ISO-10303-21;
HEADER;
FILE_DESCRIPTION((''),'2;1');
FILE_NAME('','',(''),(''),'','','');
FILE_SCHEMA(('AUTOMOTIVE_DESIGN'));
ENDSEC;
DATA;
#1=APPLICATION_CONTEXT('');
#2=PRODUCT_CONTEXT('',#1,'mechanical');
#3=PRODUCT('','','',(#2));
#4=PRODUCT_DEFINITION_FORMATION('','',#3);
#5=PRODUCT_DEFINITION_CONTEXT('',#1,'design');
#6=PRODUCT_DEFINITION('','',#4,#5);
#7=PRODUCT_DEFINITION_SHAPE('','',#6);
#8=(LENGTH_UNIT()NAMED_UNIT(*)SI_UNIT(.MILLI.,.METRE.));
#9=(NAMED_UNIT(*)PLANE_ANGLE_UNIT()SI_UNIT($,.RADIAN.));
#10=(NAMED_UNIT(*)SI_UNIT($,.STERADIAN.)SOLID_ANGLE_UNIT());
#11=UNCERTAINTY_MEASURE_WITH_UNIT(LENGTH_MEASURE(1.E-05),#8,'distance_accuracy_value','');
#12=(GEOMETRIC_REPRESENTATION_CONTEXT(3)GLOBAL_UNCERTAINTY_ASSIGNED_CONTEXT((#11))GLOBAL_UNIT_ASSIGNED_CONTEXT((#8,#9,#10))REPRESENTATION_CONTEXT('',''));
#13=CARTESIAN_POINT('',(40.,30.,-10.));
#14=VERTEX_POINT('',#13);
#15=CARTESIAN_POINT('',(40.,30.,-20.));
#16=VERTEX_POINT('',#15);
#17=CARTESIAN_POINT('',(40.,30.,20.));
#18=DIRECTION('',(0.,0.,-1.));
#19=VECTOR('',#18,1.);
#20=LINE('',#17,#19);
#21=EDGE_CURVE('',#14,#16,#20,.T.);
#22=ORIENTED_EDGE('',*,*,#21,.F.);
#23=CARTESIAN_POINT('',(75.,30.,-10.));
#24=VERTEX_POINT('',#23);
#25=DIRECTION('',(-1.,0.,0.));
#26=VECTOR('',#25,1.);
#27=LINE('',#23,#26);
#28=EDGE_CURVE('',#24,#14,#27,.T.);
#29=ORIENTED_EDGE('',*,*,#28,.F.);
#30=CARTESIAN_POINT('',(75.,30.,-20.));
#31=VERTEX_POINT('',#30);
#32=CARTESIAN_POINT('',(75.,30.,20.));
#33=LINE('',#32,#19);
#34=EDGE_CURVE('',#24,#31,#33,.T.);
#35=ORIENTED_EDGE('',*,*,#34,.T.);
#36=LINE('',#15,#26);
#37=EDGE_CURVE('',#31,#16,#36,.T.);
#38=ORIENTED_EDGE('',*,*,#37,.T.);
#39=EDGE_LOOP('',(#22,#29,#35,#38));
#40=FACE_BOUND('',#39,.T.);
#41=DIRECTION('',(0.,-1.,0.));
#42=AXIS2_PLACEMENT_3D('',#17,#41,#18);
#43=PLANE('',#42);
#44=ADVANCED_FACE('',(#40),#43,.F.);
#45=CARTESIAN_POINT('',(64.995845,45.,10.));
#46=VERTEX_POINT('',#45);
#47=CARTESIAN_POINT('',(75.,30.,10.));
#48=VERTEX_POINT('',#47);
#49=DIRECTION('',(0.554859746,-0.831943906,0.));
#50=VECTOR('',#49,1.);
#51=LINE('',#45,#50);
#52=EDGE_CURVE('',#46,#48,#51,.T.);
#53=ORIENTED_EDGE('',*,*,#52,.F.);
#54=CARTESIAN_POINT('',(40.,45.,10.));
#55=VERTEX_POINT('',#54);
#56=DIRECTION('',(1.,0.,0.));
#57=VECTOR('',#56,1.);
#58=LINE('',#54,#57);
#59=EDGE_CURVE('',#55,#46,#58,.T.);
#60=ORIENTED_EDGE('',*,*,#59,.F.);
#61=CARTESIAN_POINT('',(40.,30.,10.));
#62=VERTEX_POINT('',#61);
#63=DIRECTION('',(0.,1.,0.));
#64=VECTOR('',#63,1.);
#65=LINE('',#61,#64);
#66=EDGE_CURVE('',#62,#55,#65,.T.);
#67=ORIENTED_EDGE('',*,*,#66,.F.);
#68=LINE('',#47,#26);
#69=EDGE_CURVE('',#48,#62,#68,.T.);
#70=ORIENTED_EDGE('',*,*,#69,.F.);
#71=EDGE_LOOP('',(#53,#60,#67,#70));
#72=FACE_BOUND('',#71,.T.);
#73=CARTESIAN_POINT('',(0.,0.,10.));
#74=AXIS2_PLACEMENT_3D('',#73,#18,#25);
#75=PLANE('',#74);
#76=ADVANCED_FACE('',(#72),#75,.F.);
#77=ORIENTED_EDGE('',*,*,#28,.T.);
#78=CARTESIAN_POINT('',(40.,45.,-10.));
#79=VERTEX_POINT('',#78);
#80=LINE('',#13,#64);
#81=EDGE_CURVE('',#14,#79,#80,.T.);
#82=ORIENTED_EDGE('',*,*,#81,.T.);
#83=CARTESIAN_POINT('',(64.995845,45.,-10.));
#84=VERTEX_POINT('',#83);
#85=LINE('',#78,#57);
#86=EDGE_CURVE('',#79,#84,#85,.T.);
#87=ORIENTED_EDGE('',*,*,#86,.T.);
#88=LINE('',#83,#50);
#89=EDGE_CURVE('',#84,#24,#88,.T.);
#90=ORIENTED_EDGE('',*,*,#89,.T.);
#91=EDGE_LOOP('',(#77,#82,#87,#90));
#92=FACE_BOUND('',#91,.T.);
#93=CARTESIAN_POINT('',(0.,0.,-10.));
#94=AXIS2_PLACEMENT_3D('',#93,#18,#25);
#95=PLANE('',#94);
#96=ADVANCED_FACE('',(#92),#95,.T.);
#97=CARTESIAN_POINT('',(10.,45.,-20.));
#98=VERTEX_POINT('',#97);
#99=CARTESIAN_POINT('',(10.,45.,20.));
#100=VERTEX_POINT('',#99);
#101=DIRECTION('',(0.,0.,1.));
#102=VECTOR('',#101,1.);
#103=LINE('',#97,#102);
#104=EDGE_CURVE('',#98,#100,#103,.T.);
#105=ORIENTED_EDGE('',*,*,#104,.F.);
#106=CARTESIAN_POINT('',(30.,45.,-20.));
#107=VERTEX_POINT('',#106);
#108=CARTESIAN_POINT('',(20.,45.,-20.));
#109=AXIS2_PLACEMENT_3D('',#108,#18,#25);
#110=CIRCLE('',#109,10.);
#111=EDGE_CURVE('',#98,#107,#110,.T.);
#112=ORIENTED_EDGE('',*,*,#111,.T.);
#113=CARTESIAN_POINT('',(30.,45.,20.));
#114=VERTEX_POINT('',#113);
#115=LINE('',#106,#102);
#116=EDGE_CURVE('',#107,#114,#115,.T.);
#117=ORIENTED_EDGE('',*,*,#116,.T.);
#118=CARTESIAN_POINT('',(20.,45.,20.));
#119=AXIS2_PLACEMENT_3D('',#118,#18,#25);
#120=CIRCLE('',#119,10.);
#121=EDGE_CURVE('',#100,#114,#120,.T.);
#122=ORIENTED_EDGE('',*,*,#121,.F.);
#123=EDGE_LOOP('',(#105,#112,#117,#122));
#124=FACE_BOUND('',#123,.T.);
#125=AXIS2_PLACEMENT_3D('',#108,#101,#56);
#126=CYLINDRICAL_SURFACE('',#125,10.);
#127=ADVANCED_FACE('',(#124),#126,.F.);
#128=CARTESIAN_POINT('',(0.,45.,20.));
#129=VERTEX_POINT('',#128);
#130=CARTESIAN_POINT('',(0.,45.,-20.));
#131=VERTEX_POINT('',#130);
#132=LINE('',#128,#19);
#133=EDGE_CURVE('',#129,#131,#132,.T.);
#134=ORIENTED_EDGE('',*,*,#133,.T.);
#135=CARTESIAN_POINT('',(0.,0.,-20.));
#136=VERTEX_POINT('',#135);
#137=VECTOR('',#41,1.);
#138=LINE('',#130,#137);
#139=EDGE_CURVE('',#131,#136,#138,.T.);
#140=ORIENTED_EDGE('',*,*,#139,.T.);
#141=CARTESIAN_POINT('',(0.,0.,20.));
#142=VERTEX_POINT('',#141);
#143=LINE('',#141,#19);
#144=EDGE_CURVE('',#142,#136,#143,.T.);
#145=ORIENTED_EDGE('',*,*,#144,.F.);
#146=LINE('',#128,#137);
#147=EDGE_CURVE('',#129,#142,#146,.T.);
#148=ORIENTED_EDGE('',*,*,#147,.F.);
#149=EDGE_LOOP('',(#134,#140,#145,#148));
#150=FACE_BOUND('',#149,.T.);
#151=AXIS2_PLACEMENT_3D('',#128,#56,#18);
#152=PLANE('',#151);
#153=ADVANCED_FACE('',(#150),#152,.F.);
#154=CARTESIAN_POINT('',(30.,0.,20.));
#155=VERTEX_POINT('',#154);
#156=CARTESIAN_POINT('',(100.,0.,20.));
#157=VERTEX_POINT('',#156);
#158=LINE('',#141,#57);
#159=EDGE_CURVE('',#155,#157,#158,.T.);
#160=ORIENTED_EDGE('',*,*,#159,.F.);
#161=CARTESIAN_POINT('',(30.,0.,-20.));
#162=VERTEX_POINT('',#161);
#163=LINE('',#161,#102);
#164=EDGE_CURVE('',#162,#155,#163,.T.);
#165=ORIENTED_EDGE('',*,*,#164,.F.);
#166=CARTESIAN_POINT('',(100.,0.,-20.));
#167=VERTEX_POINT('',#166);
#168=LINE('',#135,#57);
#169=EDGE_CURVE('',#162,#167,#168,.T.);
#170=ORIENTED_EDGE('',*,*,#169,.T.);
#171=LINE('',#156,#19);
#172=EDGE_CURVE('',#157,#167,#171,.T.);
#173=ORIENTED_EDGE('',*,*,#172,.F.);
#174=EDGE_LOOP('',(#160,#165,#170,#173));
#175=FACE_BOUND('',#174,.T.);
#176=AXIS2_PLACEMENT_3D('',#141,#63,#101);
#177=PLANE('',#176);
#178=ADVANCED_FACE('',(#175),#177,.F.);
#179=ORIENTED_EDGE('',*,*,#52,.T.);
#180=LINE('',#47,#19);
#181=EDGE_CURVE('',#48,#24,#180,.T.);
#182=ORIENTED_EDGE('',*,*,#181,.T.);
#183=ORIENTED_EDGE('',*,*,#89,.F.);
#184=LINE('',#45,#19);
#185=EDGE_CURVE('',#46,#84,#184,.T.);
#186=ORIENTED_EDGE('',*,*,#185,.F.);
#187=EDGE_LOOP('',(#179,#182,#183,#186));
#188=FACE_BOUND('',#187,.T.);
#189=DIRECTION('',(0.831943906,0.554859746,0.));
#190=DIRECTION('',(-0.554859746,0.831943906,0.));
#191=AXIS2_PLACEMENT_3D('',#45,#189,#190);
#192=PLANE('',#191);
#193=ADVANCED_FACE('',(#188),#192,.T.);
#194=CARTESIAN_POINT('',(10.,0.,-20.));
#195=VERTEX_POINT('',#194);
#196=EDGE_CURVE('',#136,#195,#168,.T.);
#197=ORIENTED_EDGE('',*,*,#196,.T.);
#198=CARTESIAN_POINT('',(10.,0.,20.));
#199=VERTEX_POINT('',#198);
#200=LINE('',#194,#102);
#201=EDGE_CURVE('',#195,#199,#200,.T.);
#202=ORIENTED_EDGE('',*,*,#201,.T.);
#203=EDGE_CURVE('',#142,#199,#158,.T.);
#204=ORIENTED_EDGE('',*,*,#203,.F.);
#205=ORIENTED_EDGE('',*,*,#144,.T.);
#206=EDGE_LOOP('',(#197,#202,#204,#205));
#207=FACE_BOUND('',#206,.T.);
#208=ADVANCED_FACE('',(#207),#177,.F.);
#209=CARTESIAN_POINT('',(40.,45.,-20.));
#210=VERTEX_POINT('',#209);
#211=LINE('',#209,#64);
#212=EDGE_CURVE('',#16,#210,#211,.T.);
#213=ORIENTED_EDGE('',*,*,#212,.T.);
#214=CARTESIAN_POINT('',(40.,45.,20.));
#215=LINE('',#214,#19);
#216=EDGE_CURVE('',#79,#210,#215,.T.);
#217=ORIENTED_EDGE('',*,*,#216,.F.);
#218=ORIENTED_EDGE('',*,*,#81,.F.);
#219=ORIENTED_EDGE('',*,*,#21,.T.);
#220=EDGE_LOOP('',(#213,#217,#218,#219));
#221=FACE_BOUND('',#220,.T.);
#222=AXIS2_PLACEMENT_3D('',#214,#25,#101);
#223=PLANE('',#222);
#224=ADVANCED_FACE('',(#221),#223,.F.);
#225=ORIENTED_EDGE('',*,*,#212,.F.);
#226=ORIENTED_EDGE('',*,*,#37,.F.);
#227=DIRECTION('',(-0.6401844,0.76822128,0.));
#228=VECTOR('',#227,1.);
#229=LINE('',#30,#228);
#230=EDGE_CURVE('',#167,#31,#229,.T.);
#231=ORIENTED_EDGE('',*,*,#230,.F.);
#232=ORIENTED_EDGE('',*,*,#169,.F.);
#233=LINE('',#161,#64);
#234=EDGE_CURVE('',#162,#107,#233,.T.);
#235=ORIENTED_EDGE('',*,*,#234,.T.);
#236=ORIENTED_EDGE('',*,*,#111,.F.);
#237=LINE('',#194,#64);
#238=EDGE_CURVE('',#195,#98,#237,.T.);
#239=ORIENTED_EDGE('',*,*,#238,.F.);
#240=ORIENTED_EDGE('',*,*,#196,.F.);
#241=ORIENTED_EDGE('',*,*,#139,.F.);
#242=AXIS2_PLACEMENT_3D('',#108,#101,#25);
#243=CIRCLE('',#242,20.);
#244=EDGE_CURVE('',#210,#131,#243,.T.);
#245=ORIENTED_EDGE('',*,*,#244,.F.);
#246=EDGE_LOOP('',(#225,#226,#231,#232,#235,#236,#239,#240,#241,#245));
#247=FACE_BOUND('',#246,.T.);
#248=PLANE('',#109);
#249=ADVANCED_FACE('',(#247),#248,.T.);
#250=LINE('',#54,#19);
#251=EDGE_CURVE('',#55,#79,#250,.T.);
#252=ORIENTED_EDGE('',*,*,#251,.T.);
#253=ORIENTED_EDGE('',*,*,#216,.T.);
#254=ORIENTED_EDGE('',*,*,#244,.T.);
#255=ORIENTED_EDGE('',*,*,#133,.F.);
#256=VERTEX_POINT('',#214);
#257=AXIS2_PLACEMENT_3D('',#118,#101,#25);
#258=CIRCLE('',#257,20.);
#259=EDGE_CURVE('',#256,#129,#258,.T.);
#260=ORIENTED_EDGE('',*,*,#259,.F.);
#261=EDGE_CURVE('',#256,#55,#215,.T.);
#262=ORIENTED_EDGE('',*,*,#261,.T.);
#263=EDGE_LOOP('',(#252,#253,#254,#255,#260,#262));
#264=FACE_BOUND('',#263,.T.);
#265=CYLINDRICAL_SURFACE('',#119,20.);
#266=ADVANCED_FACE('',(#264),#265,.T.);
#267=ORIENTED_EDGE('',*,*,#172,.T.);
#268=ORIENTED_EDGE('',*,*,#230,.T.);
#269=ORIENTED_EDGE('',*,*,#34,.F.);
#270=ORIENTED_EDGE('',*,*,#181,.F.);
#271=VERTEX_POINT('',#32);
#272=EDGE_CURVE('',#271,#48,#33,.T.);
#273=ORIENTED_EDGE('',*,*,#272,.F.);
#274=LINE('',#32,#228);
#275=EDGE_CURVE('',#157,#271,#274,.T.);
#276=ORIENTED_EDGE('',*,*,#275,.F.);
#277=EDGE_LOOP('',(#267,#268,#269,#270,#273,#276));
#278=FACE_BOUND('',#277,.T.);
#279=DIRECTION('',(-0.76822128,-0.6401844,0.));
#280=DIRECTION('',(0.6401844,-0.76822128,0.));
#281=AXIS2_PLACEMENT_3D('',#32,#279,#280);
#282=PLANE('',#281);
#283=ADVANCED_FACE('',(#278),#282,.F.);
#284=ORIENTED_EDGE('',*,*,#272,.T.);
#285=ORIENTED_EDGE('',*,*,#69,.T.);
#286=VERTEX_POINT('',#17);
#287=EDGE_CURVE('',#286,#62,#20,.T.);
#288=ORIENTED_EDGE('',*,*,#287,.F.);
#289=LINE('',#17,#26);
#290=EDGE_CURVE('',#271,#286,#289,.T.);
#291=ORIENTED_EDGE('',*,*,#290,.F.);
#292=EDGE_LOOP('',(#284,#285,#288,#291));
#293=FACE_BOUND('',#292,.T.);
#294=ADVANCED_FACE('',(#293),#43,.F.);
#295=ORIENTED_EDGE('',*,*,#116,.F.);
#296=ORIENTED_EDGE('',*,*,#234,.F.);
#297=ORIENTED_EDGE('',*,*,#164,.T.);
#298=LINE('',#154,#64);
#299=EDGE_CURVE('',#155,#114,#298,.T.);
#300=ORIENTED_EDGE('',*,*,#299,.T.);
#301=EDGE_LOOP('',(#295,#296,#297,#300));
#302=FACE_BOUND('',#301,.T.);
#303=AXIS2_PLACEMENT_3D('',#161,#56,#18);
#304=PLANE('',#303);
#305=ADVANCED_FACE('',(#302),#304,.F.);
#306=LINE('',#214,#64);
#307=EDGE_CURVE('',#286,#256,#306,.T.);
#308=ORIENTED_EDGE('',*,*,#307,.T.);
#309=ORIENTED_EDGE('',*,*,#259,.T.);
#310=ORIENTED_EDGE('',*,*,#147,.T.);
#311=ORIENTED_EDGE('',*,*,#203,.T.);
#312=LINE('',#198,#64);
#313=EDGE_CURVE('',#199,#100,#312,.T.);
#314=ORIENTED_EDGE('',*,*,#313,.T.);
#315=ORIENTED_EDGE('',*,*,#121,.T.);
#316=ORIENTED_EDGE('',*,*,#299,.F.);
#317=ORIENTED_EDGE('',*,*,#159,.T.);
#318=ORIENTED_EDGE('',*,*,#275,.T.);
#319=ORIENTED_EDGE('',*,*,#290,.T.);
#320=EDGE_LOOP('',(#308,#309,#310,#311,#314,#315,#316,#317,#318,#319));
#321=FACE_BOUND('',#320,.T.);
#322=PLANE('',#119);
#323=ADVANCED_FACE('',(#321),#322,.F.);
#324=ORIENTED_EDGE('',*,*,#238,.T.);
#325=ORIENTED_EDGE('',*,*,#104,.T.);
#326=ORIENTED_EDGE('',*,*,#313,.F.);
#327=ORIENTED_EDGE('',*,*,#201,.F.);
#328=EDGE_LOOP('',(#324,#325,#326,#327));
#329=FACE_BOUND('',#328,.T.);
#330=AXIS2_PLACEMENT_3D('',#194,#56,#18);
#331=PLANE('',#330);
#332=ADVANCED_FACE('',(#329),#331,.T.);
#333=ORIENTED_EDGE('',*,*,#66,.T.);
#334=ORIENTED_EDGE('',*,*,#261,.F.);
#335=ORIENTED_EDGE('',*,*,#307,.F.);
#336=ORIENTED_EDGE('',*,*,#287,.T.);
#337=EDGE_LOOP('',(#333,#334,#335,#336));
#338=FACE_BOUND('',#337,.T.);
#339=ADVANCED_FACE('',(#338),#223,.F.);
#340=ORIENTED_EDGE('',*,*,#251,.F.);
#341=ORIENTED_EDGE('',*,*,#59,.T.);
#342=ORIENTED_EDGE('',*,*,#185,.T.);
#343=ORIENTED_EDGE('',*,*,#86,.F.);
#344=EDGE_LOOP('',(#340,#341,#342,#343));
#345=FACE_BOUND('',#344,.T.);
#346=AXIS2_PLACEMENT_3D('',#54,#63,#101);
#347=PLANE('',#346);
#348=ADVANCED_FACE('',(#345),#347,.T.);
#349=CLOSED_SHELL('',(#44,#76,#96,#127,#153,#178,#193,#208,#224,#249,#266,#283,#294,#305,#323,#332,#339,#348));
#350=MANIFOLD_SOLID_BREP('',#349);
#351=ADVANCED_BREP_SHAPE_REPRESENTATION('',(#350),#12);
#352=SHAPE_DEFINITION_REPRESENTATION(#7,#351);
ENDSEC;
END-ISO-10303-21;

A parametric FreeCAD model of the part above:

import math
import FreeCAD as App
import Part
import Sketcher

V = App.Vector
Q = App.Units.Quantity

doc = App.newDocument("Part")
body = doc.addObject("PartDesign::Body", "Body")

# Sketch on XY plane
sketch1 = body.newObject("Sketcher::SketchObject", "Sketch")
sketch1.AttachmentSupport = (doc.getObject("XY_Plane"), [""])
sketch1.MapMode = "FlatFace"
sketch1.addGeometry(Part.LineSegment(V(0, 0, 0), V(100, 0, 0)), False)
sketch1.addGeometry(Part.LineSegment(V(100, 0, 0), V(75, 30, 0)), False)
sketch1.addGeometry(Part.LineSegment(V(75, 30, 0), V(40, 30, 0)), False)
sketch1.addGeometry(Part.LineSegment(V(40, 30, 0), V(40, 45, 0)), False)
sketch1.addGeometry(Part.ArcOfCircle(Part.Circle(V(20, 45, 0), V(0, 0, 1), 20), math.radians(0), math.radians(90)), False)
sketch1.addGeometry(Part.ArcOfCircle(Part.Circle(V(20, 45, 0), V(0, 0, 1), 20), math.radians(90), math.radians(180)), False)
sketch1.addGeometry(Part.LineSegment(V(0, 45, 0), V(0, 0, 0)), False)
sketch1.addConstraint(Sketcher.Constraint("Coincident", 0, 2, 1, 1))
sketch1.addConstraint(Sketcher.Constraint("Coincident", 1, 2, 2, 1))
sketch1.addConstraint(Sketcher.Constraint("Coincident", 2, 2, 3, 1))
sketch1.addConstraint(Sketcher.Constraint("Tangent", 3, 2, 4, 1))
sketch1.addConstraint(Sketcher.Constraint("Tangent", 4, 2, 5, 1))
sketch1.addConstraint(Sketcher.Constraint("Tangent", 5, 2, 6, 1))
sketch1.addConstraint(Sketcher.Constraint("Coincident", 6, 2, 0, 1))
sketch1.addConstraint(Sketcher.Constraint("Horizontal", 0))
sketch1.addConstraint(Sketcher.Constraint("Horizontal", 2))
sketch1.addConstraint(Sketcher.Constraint("Vertical", 3))
sketch1.addConstraint(Sketcher.Constraint("Vertical", 6))
sketch1.addConstraint(Sketcher.Constraint("Coincident", 6, 2, -1, 1))
sketch1.addConstraint(Sketcher.Constraint("Equal", 4, 5))
sketch1.addConstraint(Sketcher.Constraint("Vertical", 5, 3, 4, 2))
sketch1.addConstraint(Sketcher.Constraint("Radius", 4, Q("20 mm")))
sketch1.addConstraint(Sketcher.Constraint("DistanceX", 0, 1, 0, 2, Q("100 mm")))
sketch1.addConstraint(Sketcher.Constraint("DistanceX", 2, 2, 2, 1, Q("35 mm")))
sketch1.addConstraint(Sketcher.Constraint("DistanceY", 3, 1, 3, 2, Q("15 mm")))
sketch1.addConstraint(Sketcher.Constraint("DistanceY", 6, 2, 6, 1, Q("45 mm")))
pad1 = body.newObject("PartDesign::Pad", "Pad")
pad1.Profile = sketch1
pad1.Length = 40
pad1.Midplane = True

# Sketch on XY plane
sketch2 = body.newObject("Sketcher::SketchObject", "Sketch001")
sketch2.AttachmentSupport = (doc.getObject("XY_Plane"), [""])
sketch2.MapMode = "FlatFace"
sketch2.addGeometry(Part.LineSegment(V(40, 45, 0), V(40, 30, 0)), False)
sketch2.addGeometry(Part.LineSegment(V(40, 30, 0), V(75, 30, 0)), False)
sketch2.addGeometry(Part.LineSegment(V(75, 30, 0), V(65, 45, 0)), False)
sketch2.addGeometry(Part.LineSegment(V(65, 45, 0), V(40, 45, 0)), False)
sketch2.addConstraint(Sketcher.Constraint("Coincident", 0, 2, 1, 1))
sketch2.addConstraint(Sketcher.Constraint("Coincident", 1, 2, 2, 1))
sketch2.addConstraint(Sketcher.Constraint("Coincident", 2, 2, 3, 1))
sketch2.addConstraint(Sketcher.Constraint("Coincident", 3, 2, 0, 1))
sketch2.addConstraint(Sketcher.Constraint("Vertical", 0))
sketch2.addConstraint(Sketcher.Constraint("Horizontal", 1))
sketch2.addConstraint(Sketcher.Constraint("Horizontal", 3))
sketch2.addConstraint(Sketcher.Constraint("DistanceX", 1, 1, 1, 2, Q("35 mm")))
sketch2.addConstraint(Sketcher.Constraint("DistanceY", 0, 2, 0, 1, Q("15 mm")))
sketch2.addConstraint(Sketcher.Constraint("DistanceX", -1, 1, 0, 2, Q("40 mm")))
sketch2.addConstraint(Sketcher.Constraint("DistanceY", -1, 1, 0, 2, Q("30 mm")))
sketch2.addConstraint(Sketcher.Constraint("Distance", 2, Q("18.030062 mm")))
pad2 = body.newObject("PartDesign::Pad", "Pad001")
pad2.Profile = sketch2
pad2.Length = 20
pad2.Midplane = True

# Sketch on XY plane
sketch3 = body.newObject("Sketcher::SketchObject", "Sketch002")
sketch3.AttachmentSupport = (doc.getObject("XY_Plane"), [""])
sketch3.MapMode = "FlatFace"
sketch3.addGeometry(Part.LineSegment(V(10, 45, 0), V(10, 0, 0)), False)
sketch3.addGeometry(Part.LineSegment(V(10, 0, 0), V(30, 0, 0)), False)
sketch3.addGeometry(Part.LineSegment(V(30, 0, 0), V(30, 45, 0)), False)
sketch3.addGeometry(Part.ArcOfCircle(Part.Circle(V(20, 45, 0), V(0, 0, 1), 10), math.radians(0), math.radians(180)), False)
sketch3.addConstraint(Sketcher.Constraint("Coincident", 0, 2, 1, 1))
sketch3.addConstraint(Sketcher.Constraint("Coincident", 1, 2, 2, 1))
sketch3.addConstraint(Sketcher.Constraint("Tangent", 2, 2, 3, 1))
sketch3.addConstraint(Sketcher.Constraint("Tangent", 3, 2, 0, 1))
sketch3.addConstraint(Sketcher.Constraint("Vertical", 0))
sketch3.addConstraint(Sketcher.Constraint("Horizontal", 1))
sketch3.addConstraint(Sketcher.Constraint("Vertical", 2))
sketch3.addConstraint(Sketcher.Constraint("PointOnObject", 0, 2, -1))
sketch3.addConstraint(Sketcher.Constraint("Radius", 3, Q("10 mm")))
sketch3.addConstraint(Sketcher.Constraint("DistanceY", 0, 2, 0, 1, Q("45 mm")))
sketch3.addConstraint(Sketcher.Constraint("DistanceX", -1, 1, 3, 3, Q("20 mm")))
pocket1 = body.newObject("PartDesign::Pocket", "Pocket")
pocket1.Profile = sketch3
pocket1.Length = 40
pocket1.Midplane = True

doc.recompute()
